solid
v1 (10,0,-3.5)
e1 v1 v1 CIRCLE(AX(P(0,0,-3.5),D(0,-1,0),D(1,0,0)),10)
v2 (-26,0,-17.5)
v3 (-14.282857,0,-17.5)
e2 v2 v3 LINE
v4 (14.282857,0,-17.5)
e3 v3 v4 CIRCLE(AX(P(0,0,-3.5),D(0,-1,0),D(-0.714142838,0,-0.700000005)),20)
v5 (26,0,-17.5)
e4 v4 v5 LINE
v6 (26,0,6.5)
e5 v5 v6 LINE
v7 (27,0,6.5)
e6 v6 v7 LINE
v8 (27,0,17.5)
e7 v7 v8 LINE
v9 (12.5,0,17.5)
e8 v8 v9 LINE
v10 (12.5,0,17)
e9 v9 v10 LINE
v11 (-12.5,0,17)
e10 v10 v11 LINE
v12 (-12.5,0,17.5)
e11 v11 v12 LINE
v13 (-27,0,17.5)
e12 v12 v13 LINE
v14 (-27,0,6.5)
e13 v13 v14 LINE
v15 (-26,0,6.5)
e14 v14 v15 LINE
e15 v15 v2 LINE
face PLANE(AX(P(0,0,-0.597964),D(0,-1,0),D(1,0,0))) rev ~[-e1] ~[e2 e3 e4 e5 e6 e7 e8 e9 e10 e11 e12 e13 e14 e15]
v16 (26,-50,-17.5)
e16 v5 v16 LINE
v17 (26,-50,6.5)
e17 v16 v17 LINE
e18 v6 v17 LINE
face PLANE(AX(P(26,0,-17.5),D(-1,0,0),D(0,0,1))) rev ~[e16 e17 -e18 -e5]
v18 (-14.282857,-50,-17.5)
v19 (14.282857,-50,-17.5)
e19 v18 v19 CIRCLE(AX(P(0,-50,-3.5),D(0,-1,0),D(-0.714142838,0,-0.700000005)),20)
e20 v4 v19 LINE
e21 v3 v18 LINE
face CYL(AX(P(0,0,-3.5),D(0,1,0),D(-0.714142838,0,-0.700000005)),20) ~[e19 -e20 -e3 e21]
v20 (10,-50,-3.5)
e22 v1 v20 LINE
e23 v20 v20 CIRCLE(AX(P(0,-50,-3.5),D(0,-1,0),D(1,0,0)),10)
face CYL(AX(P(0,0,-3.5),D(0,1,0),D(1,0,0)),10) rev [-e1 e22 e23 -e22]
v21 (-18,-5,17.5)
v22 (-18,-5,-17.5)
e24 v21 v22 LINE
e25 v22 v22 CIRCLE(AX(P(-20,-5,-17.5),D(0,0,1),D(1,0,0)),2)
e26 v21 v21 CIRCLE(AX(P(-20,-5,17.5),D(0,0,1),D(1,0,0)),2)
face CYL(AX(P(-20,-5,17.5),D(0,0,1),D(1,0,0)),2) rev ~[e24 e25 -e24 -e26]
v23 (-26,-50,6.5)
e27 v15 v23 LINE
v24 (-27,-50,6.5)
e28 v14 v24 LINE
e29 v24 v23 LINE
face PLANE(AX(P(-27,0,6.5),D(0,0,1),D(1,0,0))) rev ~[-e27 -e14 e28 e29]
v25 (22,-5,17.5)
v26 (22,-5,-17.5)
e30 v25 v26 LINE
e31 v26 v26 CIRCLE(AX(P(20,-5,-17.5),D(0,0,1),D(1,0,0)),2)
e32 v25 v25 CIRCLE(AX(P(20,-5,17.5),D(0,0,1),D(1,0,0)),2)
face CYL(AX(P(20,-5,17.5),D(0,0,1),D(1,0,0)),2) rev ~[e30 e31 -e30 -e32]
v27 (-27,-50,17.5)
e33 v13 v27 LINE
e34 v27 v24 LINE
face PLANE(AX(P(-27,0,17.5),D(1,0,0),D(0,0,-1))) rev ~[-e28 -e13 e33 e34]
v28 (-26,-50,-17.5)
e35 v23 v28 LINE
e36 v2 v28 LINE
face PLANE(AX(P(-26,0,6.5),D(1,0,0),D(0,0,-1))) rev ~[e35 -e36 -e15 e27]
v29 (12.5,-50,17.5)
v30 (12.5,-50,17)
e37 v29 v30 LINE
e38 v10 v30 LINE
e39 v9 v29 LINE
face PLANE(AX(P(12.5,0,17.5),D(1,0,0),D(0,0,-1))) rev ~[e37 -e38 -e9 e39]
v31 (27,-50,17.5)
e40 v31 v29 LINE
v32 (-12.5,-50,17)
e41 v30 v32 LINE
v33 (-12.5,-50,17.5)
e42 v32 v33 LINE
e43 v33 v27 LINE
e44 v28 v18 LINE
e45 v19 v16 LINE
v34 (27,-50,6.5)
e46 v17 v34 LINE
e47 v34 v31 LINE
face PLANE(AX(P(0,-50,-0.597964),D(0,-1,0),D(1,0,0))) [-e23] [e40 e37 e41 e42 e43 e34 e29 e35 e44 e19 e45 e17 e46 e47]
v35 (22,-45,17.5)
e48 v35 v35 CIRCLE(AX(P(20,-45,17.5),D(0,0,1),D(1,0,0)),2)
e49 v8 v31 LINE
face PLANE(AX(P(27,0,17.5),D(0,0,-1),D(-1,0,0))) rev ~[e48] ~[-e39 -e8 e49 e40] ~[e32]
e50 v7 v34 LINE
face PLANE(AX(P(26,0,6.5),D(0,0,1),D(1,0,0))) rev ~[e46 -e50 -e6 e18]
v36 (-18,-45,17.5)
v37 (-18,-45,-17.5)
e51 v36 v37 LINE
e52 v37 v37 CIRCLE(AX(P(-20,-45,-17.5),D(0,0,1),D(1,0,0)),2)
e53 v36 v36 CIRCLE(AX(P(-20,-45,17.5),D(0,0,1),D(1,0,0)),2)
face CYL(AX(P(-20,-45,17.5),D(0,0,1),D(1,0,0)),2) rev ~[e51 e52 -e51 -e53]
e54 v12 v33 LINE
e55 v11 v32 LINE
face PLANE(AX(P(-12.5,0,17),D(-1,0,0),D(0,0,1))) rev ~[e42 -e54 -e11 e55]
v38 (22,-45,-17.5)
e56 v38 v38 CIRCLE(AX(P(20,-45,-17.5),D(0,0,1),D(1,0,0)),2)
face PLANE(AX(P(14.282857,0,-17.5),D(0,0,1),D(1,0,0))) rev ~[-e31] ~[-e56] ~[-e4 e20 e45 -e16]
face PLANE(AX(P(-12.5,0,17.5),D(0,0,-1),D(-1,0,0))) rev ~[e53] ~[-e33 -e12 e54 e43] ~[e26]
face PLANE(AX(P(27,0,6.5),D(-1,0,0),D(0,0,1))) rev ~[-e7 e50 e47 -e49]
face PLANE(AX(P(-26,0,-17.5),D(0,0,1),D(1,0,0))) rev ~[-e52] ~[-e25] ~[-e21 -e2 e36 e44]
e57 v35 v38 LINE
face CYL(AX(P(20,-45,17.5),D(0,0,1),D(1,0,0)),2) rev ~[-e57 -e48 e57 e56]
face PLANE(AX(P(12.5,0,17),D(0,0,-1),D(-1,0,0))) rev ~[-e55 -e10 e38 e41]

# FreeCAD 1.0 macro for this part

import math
import FreeCAD as App
import Part
import Sketcher

doc = App.newDocument("Part")
body = doc.addObject("PartDesign::Body", "Body")

sketch1 = doc.addObject("Sketcher::SketchObject", "Sketch")
body.addObject(sketch1)
sketch1.AttachmentSupport = (doc.XZ_Plane, [""])
sketch1.MapMode = "FlatFace"
sketch1.addGeometry([
    Part.LineSegment(App.Vector(14.3, -17.5, 0), App.Vector(26, -17.5, 0)),
    Part.LineSegment(App.Vector(26, -17.5, 0), App.Vector(26, 6.5, 0)),
    Part.LineSegment(App.Vector(26, 6.5, 0), App.Vector(27, 6.5, 0)),
    Part.LineSegment(App.Vector(27, 6.5, 0), App.Vector(27, 17.5, 0)),
    Part.LineSegment(App.Vector(27, 17.5, 0), App.Vector(12.5, 17.5, 0)),
    Part.LineSegment(App.Vector(12.5, 17.5, 0), App.Vector(12.5, 17, 0)),
    Part.LineSegment(App.Vector(12.5, 17, 0), App.Vector(-12.5, 17, 0)),
    Part.LineSegment(App.Vector(-12.5, 17, 0), App.Vector(-12.5, 17.5, 0)),
    Part.LineSegment(App.Vector(-12.5, 17.5, 0), App.Vector(-27, 17.5, 0)),
    Part.LineSegment(App.Vector(-27, 17.5, 0), App.Vector(-27, 6.5, 0)),
    Part.LineSegment(App.Vector(-27, 6.5, 0), App.Vector(-26, 6.5, 0)),
    Part.LineSegment(App.Vector(-26, 6.5, 0), App.Vector(-26, -17.5, 0)),
    Part.LineSegment(App.Vector(-26, -17.5, 0), App.Vector(-14.3, -17.5, 0)),
    Part.ArcOfCircle(Part.Circle(App.Vector(0, -3.5, 0), App.Vector(0, 0, 1), 20), math.radians(-136), math.radians(-44)),
    Part.Circle(App.Vector(0, -3.5, 0), App.Vector(0, 0, 1), 10),
], False)
sketch1.addConstraint([
    Sketcher.Constraint("Coincident", 0, 2, 1, 1),
    Sketcher.Constraint("Coincident", 1, 2, 2, 1),
    Sketcher.Constraint("Coincident", 2, 2, 3, 1),
    Sketcher.Constraint("Coincident", 3, 2, 4, 1),
    Sketcher.Constraint("Coincident", 4, 2, 5, 1),
    Sketcher.Constraint("Coincident", 5, 2, 6, 1),
    Sketcher.Constraint("Coincident", 6, 2, 7, 1),
    Sketcher.Constraint("Coincident", 7, 2, 8, 1),
    Sketcher.Constraint("Coincident", 8, 2, 9, 1),
    Sketcher.Constraint("Coincident", 9, 2, 10, 1),
    Sketcher.Constraint("Coincident", 10, 2, 11, 1),
    Sketcher.Constraint("Coincident", 11, 2, 12, 1),
    Sketcher.Constraint("Coincident", 12, 2, 13, 1),
    Sketcher.Constraint("Coincident", 13, 2, 0, 1),
    Sketcher.Constraint("Horizontal", 0),
    Sketcher.Constraint("Vertical", 1),
    Sketcher.Constraint("Horizontal", 2),
    Sketcher.Constraint("Vertical", 3),
    Sketcher.Constraint("Horizontal", 4),
    Sketcher.Constraint("Vertical", 5),
    Sketcher.Constraint("Horizontal", 6),
    Sketcher.Constraint("Vertical", 7),
    Sketcher.Constraint("Horizontal", 8),
    Sketcher.Constraint("Vertical", 9),
    Sketcher.Constraint("Horizontal", 10),
    Sketcher.Constraint("Vertical", 11),
    Sketcher.Constraint("Horizontal", 12),
    Sketcher.Constraint("Coincident", 14, 3, 13, 3),
    Sketcher.Constraint("Symmetric", 4, 2, 7, 2, -2),
    Sketcher.Constraint("Symmetric", 2, 2, 9, 2, -2),
    Sketcher.Constraint("Symmetric", 0, 2, 11, 2, -2),
    Sketcher.Constraint("PointOnObject", 13, 3, -2),
    Sketcher.Constraint("Diameter", 14, 20.0),
    Sketcher.Constraint("Radius", 13, 20.0),
    Sketcher.Constraint("DistanceX", 2, 1, 2, 2, 1.0),
    Sketcher.Constraint("DistanceX", 6, 2, 6, 1, 25.0),
    Sketcher.Constraint("DistanceY", 1, 1, 1, 2, 24.0),
    Sketcher.Constraint("DistanceY", 3, 1, 3, 2, 11.0),
    Sketcher.Constraint("DistanceX", 4, 2, 4, 1, 14.5),
    Sketcher.Constraint("DistanceY", 5, 2, 5, 1, 0.5),
    Sketcher.Constraint("DistanceY", -1, 1, 5, 2, 17.0),
    Sketcher.Constraint("DistanceY", 0, 2, 14, 3, 14.0),
])
pad1 = doc.addObject("PartDesign::Pad", "Pad")
body.addObject(pad1)
pad1.Profile = sketch1
pad1.Length = 50

sketch2 = doc.addObject("Sketcher::SketchObject", "Sketch001")
body.addObject(sketch2)
sketch2.AttachmentSupport = (doc.XY_Plane, [""])
sketch2.MapMode = "FlatFace"
sketch2.AttachmentOffset = App.Placement(App.Vector(0, 0, 17.5), App.Rotation())
sketch2.addGeometry([
    Part.Circle(App.Vector(20, -45, 0), App.Vector(0, 0, 1), 2),
    Part.Circle(App.Vector(-20, -45, 0), App.Vector(0, 0, 1), 2),
    Part.Circle(App.Vector(-20, -5, 0), App.Vector(0, 0, 1), 2),
    Part.Circle(App.Vector(20, -5, 0), App.Vector(0, 0, 1), 2),
], False)
sketch2.addConstraint([
    Sketcher.Constraint("Equal", 0, 1),
    Sketcher.Constraint("Equal", 1, 2),
    Sketcher.Constraint("Equal", 2, 3),
    Sketcher.Constraint("Symmetric", 0, 3, 1, 3, -2),
    Sketcher.Constraint("Symmetric", 2, 3, 3, 3, -2),
    Sketcher.Constraint("Vertical", 1, 3, 2, 3),
    Sketcher.Constraint("Diameter", 0, 4.0),
    Sketcher.Constraint("DistanceX", -1, 1, 0, 3, 20.0),
    Sketcher.Constraint("DistanceY", 0, 3, -1, 1, 45.0),
    Sketcher.Constraint("DistanceY", 2, 3, -1, 1, 5.0),
])
pocket1 = doc.addObject("PartDesign::Pocket", "Pocket")
body.addObject(pocket1)
pocket1.Profile = sketch2
pocket1.Type = "ThroughAll"

doc.recompute()
